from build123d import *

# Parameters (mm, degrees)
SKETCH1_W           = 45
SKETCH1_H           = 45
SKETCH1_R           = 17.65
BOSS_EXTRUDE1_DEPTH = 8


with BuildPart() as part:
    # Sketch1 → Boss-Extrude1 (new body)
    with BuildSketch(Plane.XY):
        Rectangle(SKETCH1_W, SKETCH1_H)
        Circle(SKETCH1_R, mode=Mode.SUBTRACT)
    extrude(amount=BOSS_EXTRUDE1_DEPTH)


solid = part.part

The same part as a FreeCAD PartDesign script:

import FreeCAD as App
import Part
import Sketcher
from FreeCAD import Vector
Q = App.Units.Quantity

doc = App.newDocument("Part")
params = doc.addObject("Spreadsheet::Sheet", "Params")
for row, (alias, value) in enumerate([
    ("sketch1_diameter", "35.3 mm"),
    ("sketch1_width", "45 mm"),
    ("pad1_length", "8 mm"),
], start=1):
    params.set(f"A{row}", alias)
    params.set(f"B{row}", "=" + value)
    params.setAlias(f"B{row}", alias)

body = doc.addObject("PartDesign::Body", "Body")

# Sketch on XY plane
sketch1 = body.newObject("Sketcher::SketchObject", "Sketch")
sketch1.AttachmentSupport = (doc.getObject("XY_Plane"), [""])
sketch1.MapMode = "FlatFace"
sketch1.addGeometry(Part.LineSegment(Vector(-22, 22, 0), Vector(-22, -22, 0)), False)
sketch1.addGeometry(Part.LineSegment(Vector(-22, -22, 0), Vector(22, -22, 0)), False)
sketch1.addGeometry(Part.LineSegment(Vector(22, -22, 0), Vector(22, 22, 0)), False)
sketch1.addGeometry(Part.LineSegment(Vector(22, 22, 0), Vector(-22, 22, 0)), False)
sketch1.addGeometry(Part.Circle(Vector(0, 0, 0), Vector(0, 0, 1), 18), False)
sketch1.addConstraint(Sketcher.Constraint("Coincident", 0, 2, 1, 1))
sketch1.addConstraint(Sketcher.Constraint("Coincident", 1, 2, 2, 1))
sketch1.addConstraint(Sketcher.Constraint("Coincident", 2, 2, 3, 1))
sketch1.addConstraint(Sketcher.Constraint("Coincident", 3, 2, 0, 1))
sketch1.addConstraint(Sketcher.Constraint("Vertical", 0))
sketch1.addConstraint(Sketcher.Constraint("Horizontal", 1))
sketch1.addConstraint(Sketcher.Constraint("Vertical", 2))
sketch1.addConstraint(Sketcher.Constraint("Horizontal", 3))
sketch1.addConstraint(Sketcher.Constraint("Coincident", 4, 3, -1, 1))
sketch1.addConstraint(Sketcher.Constraint("Symmetric", 0, 2, 2, 2, -1, 1))
sketch1.addConstraint(Sketcher.Constraint("Equal", 3, 0))
sketch1.addConstraint(Sketcher.Constraint("Diameter", 4, Q("35.3 mm")))
sketch1.addConstraint(Sketcher.Constraint("DistanceX", 1, 1, 1, 2, Q("45 mm")))
sketch1.setExpression("Constraints[11]", "Params.sketch1_diameter")
sketch1.setExpression("Constraints[12]", "Params.sketch1_width")
pad1 = body.newObject("PartDesign::Pad", "Pad")
pad1.Profile = sketch1
pad1.setExpression("Length", "Params.pad1_length")

doc.recompute()
